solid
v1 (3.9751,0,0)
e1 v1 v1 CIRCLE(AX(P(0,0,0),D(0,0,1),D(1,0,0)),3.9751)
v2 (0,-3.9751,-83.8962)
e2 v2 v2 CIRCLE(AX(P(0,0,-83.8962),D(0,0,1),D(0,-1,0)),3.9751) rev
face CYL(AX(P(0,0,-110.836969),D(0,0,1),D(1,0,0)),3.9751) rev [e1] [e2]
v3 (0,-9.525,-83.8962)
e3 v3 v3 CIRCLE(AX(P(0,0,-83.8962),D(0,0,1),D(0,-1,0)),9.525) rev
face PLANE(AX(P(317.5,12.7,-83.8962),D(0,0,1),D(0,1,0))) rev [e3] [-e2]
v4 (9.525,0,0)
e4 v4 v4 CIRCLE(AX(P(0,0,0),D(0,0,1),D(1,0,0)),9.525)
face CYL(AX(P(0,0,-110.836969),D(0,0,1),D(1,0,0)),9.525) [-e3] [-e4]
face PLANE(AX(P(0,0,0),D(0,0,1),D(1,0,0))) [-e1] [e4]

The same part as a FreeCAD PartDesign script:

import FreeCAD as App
import Part
import Sketcher
from FreeCAD import Vector
Q = App.Units.Quantity

doc = App.newDocument("Part")
params = doc.addObject("Spreadsheet::Sheet", "Params")
for row, (alias, value) in enumerate([
    ("sketch1_diameter", "0.75 in"),
    ("sketch1_diameter2", "0.313 in"),
    ("pad1_length", "3.303 in"),
], start=1):
    params.set(f"A{row}", alias)
    params.set(f"B{row}", "=" + value)
    params.setAlias(f"B{row}", alias)

body = doc.addObject("PartDesign::Body", "Body")

sketch1 = body.newObject("Sketcher::SketchObject", "Sketch")
sketch1.AttachmentSupport = (doc.getObject("XY_Plane"), [""])
sketch1.MapMode = "FlatFace"
sketch1.addGeometry([
    Part.Circle(Vector(0, 0, 0), Vector(0, 0, 1), 9.5),
    Part.Circle(Vector(0, 0, 0), Vector(0, 0, 1), 4),
], False)
sketch1.addConstraint([
    Sketcher.Constraint("Coincident", 0, 3, -1, 1),
    Sketcher.Constraint("Coincident", 1, 3, -1, 1),
    Sketcher.Constraint("Diameter", 0, Q("0.75 in")),
    Sketcher.Constraint("Diameter", 1, Q("0.313 in")),
])
sketch1.setExpression("Constraints[2]", "Params.sketch1_diameter")
sketch1.setExpression("Constraints[3]", "Params.sketch1_diameter2")
pad1 = body.newObject("PartDesign::Pad", "Pad")
pad1.Profile = sketch1
pad1.setExpression("Length", "Params.pad1_length")
pad1.Reversed = True

doc.recompute()
